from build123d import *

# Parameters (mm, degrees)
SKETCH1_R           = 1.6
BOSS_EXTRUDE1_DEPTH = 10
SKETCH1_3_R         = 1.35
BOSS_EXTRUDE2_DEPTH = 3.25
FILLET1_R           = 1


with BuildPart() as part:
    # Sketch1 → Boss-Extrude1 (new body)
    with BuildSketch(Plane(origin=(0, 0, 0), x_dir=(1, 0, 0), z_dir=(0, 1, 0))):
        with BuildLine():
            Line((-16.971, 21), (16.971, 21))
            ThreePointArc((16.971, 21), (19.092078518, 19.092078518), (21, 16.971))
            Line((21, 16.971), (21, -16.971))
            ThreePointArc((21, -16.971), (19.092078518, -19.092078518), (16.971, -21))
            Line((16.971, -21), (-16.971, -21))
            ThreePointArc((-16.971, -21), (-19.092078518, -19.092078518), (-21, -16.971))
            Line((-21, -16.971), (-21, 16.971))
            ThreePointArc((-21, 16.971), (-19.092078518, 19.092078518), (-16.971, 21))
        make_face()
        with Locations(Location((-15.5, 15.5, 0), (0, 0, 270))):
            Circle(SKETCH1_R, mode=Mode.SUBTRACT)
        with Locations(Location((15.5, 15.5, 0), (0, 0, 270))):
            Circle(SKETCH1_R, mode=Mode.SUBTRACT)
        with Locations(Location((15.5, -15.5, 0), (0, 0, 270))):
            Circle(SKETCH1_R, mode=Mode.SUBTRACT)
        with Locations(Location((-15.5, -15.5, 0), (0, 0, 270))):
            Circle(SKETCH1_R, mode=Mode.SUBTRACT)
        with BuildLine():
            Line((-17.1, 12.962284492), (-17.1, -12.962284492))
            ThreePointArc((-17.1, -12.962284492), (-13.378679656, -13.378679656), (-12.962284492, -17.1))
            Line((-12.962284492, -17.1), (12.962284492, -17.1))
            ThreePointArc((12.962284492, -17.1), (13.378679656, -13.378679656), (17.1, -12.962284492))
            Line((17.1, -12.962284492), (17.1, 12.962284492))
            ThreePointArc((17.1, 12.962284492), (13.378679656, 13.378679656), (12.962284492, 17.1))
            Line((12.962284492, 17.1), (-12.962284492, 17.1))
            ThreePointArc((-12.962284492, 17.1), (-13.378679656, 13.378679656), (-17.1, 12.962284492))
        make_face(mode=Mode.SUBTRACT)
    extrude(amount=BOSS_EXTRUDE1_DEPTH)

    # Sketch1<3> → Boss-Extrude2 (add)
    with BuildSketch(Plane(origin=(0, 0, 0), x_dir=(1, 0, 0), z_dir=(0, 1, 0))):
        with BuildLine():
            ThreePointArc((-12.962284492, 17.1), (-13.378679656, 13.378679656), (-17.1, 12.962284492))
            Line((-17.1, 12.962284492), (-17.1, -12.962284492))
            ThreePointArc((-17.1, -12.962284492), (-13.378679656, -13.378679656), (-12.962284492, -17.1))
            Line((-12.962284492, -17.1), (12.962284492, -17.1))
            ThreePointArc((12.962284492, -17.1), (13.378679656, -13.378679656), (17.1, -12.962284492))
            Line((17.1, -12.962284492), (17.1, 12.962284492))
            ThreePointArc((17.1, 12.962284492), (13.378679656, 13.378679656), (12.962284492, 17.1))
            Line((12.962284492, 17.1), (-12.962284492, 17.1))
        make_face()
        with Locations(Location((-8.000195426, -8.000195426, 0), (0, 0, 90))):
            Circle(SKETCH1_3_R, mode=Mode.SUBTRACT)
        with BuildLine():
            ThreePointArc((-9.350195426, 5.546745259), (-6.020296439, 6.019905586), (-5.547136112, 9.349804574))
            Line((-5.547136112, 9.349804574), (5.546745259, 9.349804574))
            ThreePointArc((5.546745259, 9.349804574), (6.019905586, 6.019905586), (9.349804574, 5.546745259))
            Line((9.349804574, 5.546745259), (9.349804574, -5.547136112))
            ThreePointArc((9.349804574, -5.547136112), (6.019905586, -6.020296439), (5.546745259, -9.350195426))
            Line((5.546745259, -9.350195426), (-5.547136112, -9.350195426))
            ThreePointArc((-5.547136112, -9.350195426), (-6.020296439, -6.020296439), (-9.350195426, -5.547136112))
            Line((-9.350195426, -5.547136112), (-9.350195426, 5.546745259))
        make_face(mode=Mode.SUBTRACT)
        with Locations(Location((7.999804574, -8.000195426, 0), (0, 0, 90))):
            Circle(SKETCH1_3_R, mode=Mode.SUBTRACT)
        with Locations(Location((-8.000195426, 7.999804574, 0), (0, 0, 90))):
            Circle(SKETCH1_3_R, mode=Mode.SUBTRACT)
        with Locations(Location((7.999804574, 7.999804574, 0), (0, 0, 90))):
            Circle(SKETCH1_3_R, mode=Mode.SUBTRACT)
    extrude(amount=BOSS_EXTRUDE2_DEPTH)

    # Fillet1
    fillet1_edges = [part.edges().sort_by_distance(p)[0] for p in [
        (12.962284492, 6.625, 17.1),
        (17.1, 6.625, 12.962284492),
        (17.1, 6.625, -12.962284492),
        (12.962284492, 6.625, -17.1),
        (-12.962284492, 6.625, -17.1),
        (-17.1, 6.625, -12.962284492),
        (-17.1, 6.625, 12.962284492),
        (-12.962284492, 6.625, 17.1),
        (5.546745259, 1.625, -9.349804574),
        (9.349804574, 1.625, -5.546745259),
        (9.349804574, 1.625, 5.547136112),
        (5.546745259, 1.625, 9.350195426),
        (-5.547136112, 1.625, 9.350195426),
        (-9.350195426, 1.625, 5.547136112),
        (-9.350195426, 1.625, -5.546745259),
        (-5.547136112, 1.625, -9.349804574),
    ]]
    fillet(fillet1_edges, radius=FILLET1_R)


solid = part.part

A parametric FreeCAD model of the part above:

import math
import FreeCAD as App
import Part
import Sketcher


def edges_at(feature, points):
    """Names of the edges that pass closest to the given points."""
    edges = feature.Shape.Edges
    near = lambda p: min(range(len(edges)), key=lambda i: edges[i].distToShape(Part.Vertex(*p))[0])
    return sorted({f"Edge{near(p) + 1}" for p in points})

doc = App.newDocument("Part")
body = doc.addObject("PartDesign::Body", "Body")

sketch1 = doc.addObject("Sketcher::SketchObject", "Sketch")
body.addObject(sketch1)
sketch1.AttachmentSupport = (doc.XZ_Plane, [""])
sketch1.MapMode = "FlatFace"
sketch1.addGeometry([
    Part.LineSegment(App.Vector(16.971, -21, 0), App.Vector(-16.971, -21, 0)),
    Part.ArcOfCircle(Part.Circle(App.Vector(-0.000195, -0.000195, 0), App.Vector(0, 0, 1), 27), math.radians(-141.056899), math.radians(-128.943101)),
    Part.LineSegment(App.Vector(-21, -16.971, 0), App.Vector(-21, 16.971, 0)),
    Part.ArcOfCircle(Part.Circle(App.Vector(-0.000195, 0.000195, 0), App.Vector(0, 0, 1), 27), math.radians(128.943101), math.radians(141.056899)),
    Part.LineSegment(App.Vector(-16.971, 21, 0), App.Vector(16.971, 21, 0)),
    Part.ArcOfCircle(Part.Circle(App.Vector(0.000195, 0.000195, 0), App.Vector(0, 0, 1), 27), math.radians(38.943101), math.radians(51.056899)),
    Part.LineSegment(App.Vector(21, 16.971, 0), App.Vector(21, -16.971, 0)),
    Part.ArcOfCircle(Part.Circle(App.Vector(0.000195, -0.000195, 0), App.Vector(0, 0, 1), 27), math.radians(-51.056899), math.radians(-38.943101)),
    Part.Circle(App.Vector(15.5, 15.5, 0), App.Vector(0, 0, 1), 1.6),
    Part.Circle(App.Vector(-15.5, 15.5, 0), App.Vector(0, 0, 1), 1.6),
    Part.Circle(App.Vector(15.5, -15.5, 0), App.Vector(0, 0, 1), 1.6),
    Part.ArcOfCircle(Part.Circle(App.Vector(-15.5, -15.5, 0), App.Vector(0, 0, 1), 3), math.radians(-32.230953), math.radians(122.230953)),
    Part.LineSegment(App.Vector(-12.962284, -17.1, 0), App.Vector(12.962284, -17.1, 0)),
    Part.ArcOfCircle(Part.Circle(App.Vector(15.5, -15.5, 0), App.Vector(0, 0, 1), 3), math.radians(57.769047), math.radians(212.230953)),
    Part.LineSegment(App.Vector(17.1, -12.962284, 0), App.Vector(17.1, 12.962284, 0)),
    Part.ArcOfCircle(Part.Circle(App.Vector(15.5, 15.5, 0), App.Vector(0, 0, 1), 3), math.radians(147.769047), math.radians(302.230953)),
    Part.LineSegment(App.Vector(12.962284, 17.1, 0), App.Vector(-12.962284, 17.1, 0)),
    Part.ArcOfCircle(Part.Circle(App.Vector(-15.5, 15.5, 0), App.Vector(0, 0, 1), 3), math.radians(-122.230953), math.radians(32.230953)),
    Part.LineSegment(App.Vector(-17.1, 12.962284, 0), App.Vector(-17.1, -12.962284, 0)),
    Part.Circle(App.Vector(-15.5, -15.5, 0), App.Vector(0, 0, 1), 1.6),
], False)
sketch1.addConstraint([
    Sketcher.Constraint("Coincident", 0, 2, 1, 2),
    Sketcher.Constraint("Coincident", 1, 1, 2, 1),
    Sketcher.Constraint("Coincident", 2, 2, 3, 2),
    Sketcher.Constraint("Coincident", 3, 1, 4, 1),
    Sketcher.Constraint("Coincident", 4, 2, 5, 2),
    Sketcher.Constraint("Coincident", 5, 1, 6, 1),
    Sketcher.Constraint("Coincident", 6, 2, 7, 2),
    Sketcher.Constraint("Coincident", 7, 1, 0, 1),
    Sketcher.Constraint("Coincident", 11, 1, 12, 1),
    Sketcher.Constraint("Coincident", 12, 2, 13, 2),
    Sketcher.Constraint("Coincident", 13, 1, 14, 1),
    Sketcher.Constraint("Coincident", 14, 2, 15, 2),
    Sketcher.Constraint("Coincident", 15, 1, 16, 1),
    Sketcher.Constraint("Coincident", 16, 2, 17, 2),
    Sketcher.Constraint("Coincident", 17, 1, 18, 1),
    Sketcher.Constraint("Coincident", 18, 2, 11, 2),
    Sketcher.Constraint("Horizontal", 0),
    Sketcher.Constraint("Vertical", 2),
    Sketcher.Constraint("Horizontal", 4),
    Sketcher.Constraint("Vertical", 6),
    Sketcher.Constraint("Horizontal", 12),
    Sketcher.Constraint("Vertical", 14),
    Sketcher.Constraint("Horizontal", 16),
    Sketcher.Constraint("Vertical", 18),
    Sketcher.Constraint("Coincident", 13, 3, 10, 3),
    Sketcher.Constraint("Coincident", 15, 3, 8, 3),
    Sketcher.Constraint("Coincident", 17, 3, 9, 3),
    Sketcher.Constraint("Coincident", 19, 3, 11, 3),
    Sketcher.Constraint("Equal", 1, 3),
    Sketcher.Constraint("Equal", 3, 5),
    Sketcher.Constraint("Equal", 5, 7),
    Sketcher.Constraint("Equal", 8, 9),
    Sketcher.Constraint("Equal", 9, 10),
    Sketcher.Constraint("Equal", 11, 13),
    Sketcher.Constraint("Equal", 13, 15),
    Sketcher.Constraint("Equal", 15, 17),
    Sketcher.Constraint("Equal", 10, 19),
    Sketcher.Constraint("Symmetric", 1, 3, 5, 3, -1, 1),
    Sketcher.Constraint("Symmetric", 3, 3, 7, 3, -1, 1),
    Sketcher.Constraint("Symmetric", 9, 3, 10, 3, -1, 1),
    Sketcher.Constraint("Symmetric", 8, 3, 11, 3, -1, 1),
    Sketcher.Constraint("Symmetric", 3, 3, 5, 3, -2),
    Sketcher.Constraint("Symmetric", 8, 3, 9, 3, -2),
    Sketcher.Constraint("Horizontal", 2, 2, 5, 1),
    Sketcher.Constraint("Horizontal", 14, 2, 17, 1),
    Sketcher.Constraint("Vertical", 0, 2, 3, 1),
    Sketcher.Constraint("Vertical", 12, 2, 15, 1),
    Sketcher.Constraint("Equal", 4, 2),
    Sketcher.Constraint("Equal", 16, 14),
    Sketcher.Constraint("Radius", 1, 27.0),
    Sketcher.Constraint("Radius", 11, 3.0),
    Sketcher.Constraint("Diameter", 8, 3.2),
    Sketcher.Constraint("DistanceY", 0, 2, -1, 1, 21.0),
    Sketcher.Constraint("DistanceX", 1, 1, -1, 1, 21.0),
    Sketcher.Constraint("DistanceX", 9, 3, 8, 3, 31.0),
    Sketcher.Constraint("DistanceY", 10, 3, 8, 3, 31.0),
    Sketcher.Constraint("DistanceY", 11, 1, -1, 1, 17.1),
    Sketcher.Constraint("DistanceX", 0, 2, 0, 1, 33.942),
])
pad1 = doc.addObject("PartDesign::Pad", "Pad")
body.addObject(pad1)
pad1.Profile = sketch1
pad1.Length = 10
pad1.Reversed = True

sketch2 = doc.addObject("Sketcher::SketchObject", "Sketch001")
body.addObject(sketch2)
sketch2.AttachmentSupport = (doc.XZ_Plane, [""])
sketch2.MapMode = "FlatFace"
sketch2.addGeometry([
    Part.ArcOfCircle(Part.Circle(App.Vector(-15.5, -15.5, 0), App.Vector(0, 0, 1), 3), math.radians(-32), math.radians(122)),
    Part.LineSegment(App.Vector(-17.1, -13, 0), App.Vector(-17.1, 13, 0)),
    Part.ArcOfCircle(Part.Circle(App.Vector(-15.5, 15.5, 0), App.Vector(0, 0, 1), 3), math.radians(-122), math.radians(32)),
    Part.LineSegment(App.Vector(-13, 17.1, 0), App.Vector(13, 17.1, 0)),
    Part.ArcOfCircle(Part.Circle(App.Vector(15.5, 15.5, 0), App.Vector(0, 0, 1), 3), math.radians(148), math.radians(302)),
    Part.LineSegment(App.Vector(17.1, 13, 0), App.Vector(17.1, -13, 0)),
    Part.ArcOfCircle(Part.Circle(App.Vector(15.5, -15.5, 0), App.Vector(0, 0, 1), 3), math.radians(58), math.radians(212)),
    Part.LineSegment(App.Vector(13, -17.1, 0), App.Vector(-13, -17.1, 0)),
    Part.Circle(App.Vector(-8, 8, 0), App.Vector(0, 0, 1), 1.4),
    Part.Circle(App.Vector(8, 8, 0), App.Vector(0, 0, 1), 1.4),
    Part.Circle(App.Vector(-8, -8, 0), App.Vector(0, 0, 1), 1.4),
    Part.LineSegment(App.Vector(-9.4, 5.5, 0), App.Vector(-9.4, -5.5, 0)),
    Part.ArcOfCircle(Part.Circle(App.Vector(-8, -8, 0), App.Vector(0, 0, 1), 2.8), math.radians(-29), math.radians(119)),
    Part.LineSegment(App.Vector(-5.5, -9.3, 0), App.Vector(5.5, -9.3, 0)),
    Part.ArcOfCircle(Part.Circle(App.Vector(8, -8, 0), App.Vector(0, 0, 1), 2.8), math.radians(61), math.radians(209)),
    Part.LineSegment(App.Vector(9.3, -5.5, 0), App.Vector(9.3, 5.5, 0)),
    Part.ArcOfCircle(Part.Circle(App.Vector(8, 8, 0), App.Vector(0, 0, 1), 2.8), math.radians(151), math.radians(299)),
    Part.LineSegment(App.Vector(5.5, 9.4, 0), App.Vector(-5.5, 9.4, 0)),
    Part.ArcOfCircle(Part.Circle(App.Vector(-8, 8, 0), App.Vector(0, 0, 1), 2.8), math.radians(-119), math.radians(29)),
    Part.Circle(App.Vector(8, -8, 0), App.Vector(0, 0, 1), 1.4),
], False)
sketch2.addConstraint([
    Sketcher.Constraint("Coincident", 0, 2, 1, 1),
    Sketcher.Constraint("Coincident", 1, 2, 2, 1),
    Sketcher.Constraint("Coincident", 2, 2, 3, 1),
    Sketcher.Constraint("Coincident", 3, 2, 4, 1),
    Sketcher.Constraint("Coincident", 4, 2, 5, 1),
    Sketcher.Constraint("Coincident", 5, 2, 6, 1),
    Sketcher.Constraint("Coincident", 6, 2, 7, 1),
    Sketcher.Constraint("Coincident", 7, 2, 0, 1),
    Sketcher.Constraint("Coincident", 11, 2, 12, 2),
    Sketcher.Constraint("Coincident", 12, 1, 13, 1),
    Sketcher.Constraint("Coincident", 13, 2, 14, 2),
    Sketcher.Constraint("Coincident", 14, 1, 15, 1),
    Sketcher.Constraint("Coincident", 15, 2, 16, 2),
    Sketcher.Constraint("Coincident", 16, 1, 17, 1),
    Sketcher.Constraint("Coincident", 17, 2, 18, 2),
    Sketcher.Constraint("Coincident", 18, 1, 11, 1),
    Sketcher.Constraint("Vertical", 1),
    Sketcher.Constraint("Horizontal", 3),
    Sketcher.Constraint("Vertical", 5),
    Sketcher.Constraint("Horizontal", 7),
    Sketcher.Constraint("Vertical", 11),
    Sketcher.Constraint("Horizontal", 13),
    Sketcher.Constraint("Vertical", 15),
    Sketcher.Constraint("Horizontal", 17),
    Sketcher.Constraint("Coincident", 12, 3, 10, 3),
    Sketcher.Constraint("Coincident", 16, 3, 9, 3),
    Sketcher.Constraint("Coincident", 18, 3, 8, 3),
    Sketcher.Constraint("Coincident", 19, 3, 14, 3),
    Sketcher.Constraint("Equal", 0, 2),
    Sketcher.Constraint("Equal", 2, 4),
    Sketcher.Constraint("Equal", 4, 6),
    Sketcher.Constraint("Equal", 8, 9),
    Sketcher.Constraint("Equal", 9, 10),
    Sketcher.Constraint("Equal", 12, 14),
    Sketcher.Constraint("Equal", 14, 16),
    Sketcher.Constraint("Equal", 16, 18),
    Sketcher.Constraint("Equal", 10, 19),
    Sketcher.Constraint("Symmetric", 0, 3, 4, 3, -1, 1),
    Sketcher.Constraint("Symmetric", 2, 3, 6, 3, -1, 1),
    Sketcher.Constraint("Symmetric", 2, 3, 4, 3, -2),
    Sketcher.Constraint("Horizontal", 8, 3, 9, 3),
    Sketcher.Constraint("Horizontal", 12, 3, 14, 3),
    Sketcher.Constraint("Horizontal", 1, 2, 4, 2),
    Sketcher.Constraint("Horizontal", 11, 2, 14, 1),
    Sketcher.Constraint("Horizontal", 15, 2, 18, 1),
    Sketcher.Constraint("Vertical", 8, 3, 10, 3),
    Sketcher.Constraint("Vertical", 3, 2, 6, 2),
    Sketcher.Constraint("Vertical", 13, 2, 16, 1),
    Sketcher.Constraint("Equal", 7, 1),
    Sketcher.Constraint("Equal", 17, 11),
    Sketcher.Constraint("Radius", 0, 3.0),
    Sketcher.Constraint("Diameter", 8, 2.7),
    Sketcher.Constraint("Radius", 12, 2.8),
    Sketcher.Constraint("DistanceY", 0, 3, 2, 3, 31.0),
    Sketcher.Constraint("DistanceX", 2, 3, 4, 3, 31.0),
    Sketcher.Constraint("DistanceX", 8, 3, 9, 3, 16.0),
    Sketcher.Constraint("DistanceY", 10, 3, 8, 3, 16.0),
    Sketcher.Constraint("DistanceX", 0, 2, -1, 1, 17.1),
    Sketcher.Constraint("DistanceX", 11, 2, 10, 3, 1.35),
    Sketcher.Constraint("DistanceY", 0, 2, 10, 3, 4.96248),
    Sketcher.Constraint("DistanceX", 2, 2, 8, 3, 4.962089),
])
pad2 = doc.addObject("PartDesign::Pad", "Pad001")
body.addObject(pad2)
pad2.Profile = sketch2
pad2.Length = 3.25
pad2.Reversed = True
doc.recompute()

fillet = doc.addObject("PartDesign::Fillet", "Fillet")
body.addObject(fillet)
fillet.Base = (pad2, edges_at(pad2, [
    (12.962, 6.625, 17.1),
    (17.1, 6.625, 12.962),
    (17.1, 6.625, -12.962),
    (12.962, 6.625, -17.1),
    (-12.962, 6.625, -17.1),
    (-17.1, 6.625, -12.962),
    (-17.1, 6.625, 12.962),
    (-12.962, 6.625, 17.1),
    (5.547, 1.625, -9.35),
    (9.35, 1.625, -5.547),
    (9.35, 1.625, 5.547),
    (5.547, 1.625, 9.35),
    (-5.547, 1.625, 9.35),
    (-9.35, 1.625, 5.547),
    (-9.35, 1.625, -5.547),
    (-5.547, 1.625, -9.35),
]))
fillet.Radius = 1

doc.recompute()
